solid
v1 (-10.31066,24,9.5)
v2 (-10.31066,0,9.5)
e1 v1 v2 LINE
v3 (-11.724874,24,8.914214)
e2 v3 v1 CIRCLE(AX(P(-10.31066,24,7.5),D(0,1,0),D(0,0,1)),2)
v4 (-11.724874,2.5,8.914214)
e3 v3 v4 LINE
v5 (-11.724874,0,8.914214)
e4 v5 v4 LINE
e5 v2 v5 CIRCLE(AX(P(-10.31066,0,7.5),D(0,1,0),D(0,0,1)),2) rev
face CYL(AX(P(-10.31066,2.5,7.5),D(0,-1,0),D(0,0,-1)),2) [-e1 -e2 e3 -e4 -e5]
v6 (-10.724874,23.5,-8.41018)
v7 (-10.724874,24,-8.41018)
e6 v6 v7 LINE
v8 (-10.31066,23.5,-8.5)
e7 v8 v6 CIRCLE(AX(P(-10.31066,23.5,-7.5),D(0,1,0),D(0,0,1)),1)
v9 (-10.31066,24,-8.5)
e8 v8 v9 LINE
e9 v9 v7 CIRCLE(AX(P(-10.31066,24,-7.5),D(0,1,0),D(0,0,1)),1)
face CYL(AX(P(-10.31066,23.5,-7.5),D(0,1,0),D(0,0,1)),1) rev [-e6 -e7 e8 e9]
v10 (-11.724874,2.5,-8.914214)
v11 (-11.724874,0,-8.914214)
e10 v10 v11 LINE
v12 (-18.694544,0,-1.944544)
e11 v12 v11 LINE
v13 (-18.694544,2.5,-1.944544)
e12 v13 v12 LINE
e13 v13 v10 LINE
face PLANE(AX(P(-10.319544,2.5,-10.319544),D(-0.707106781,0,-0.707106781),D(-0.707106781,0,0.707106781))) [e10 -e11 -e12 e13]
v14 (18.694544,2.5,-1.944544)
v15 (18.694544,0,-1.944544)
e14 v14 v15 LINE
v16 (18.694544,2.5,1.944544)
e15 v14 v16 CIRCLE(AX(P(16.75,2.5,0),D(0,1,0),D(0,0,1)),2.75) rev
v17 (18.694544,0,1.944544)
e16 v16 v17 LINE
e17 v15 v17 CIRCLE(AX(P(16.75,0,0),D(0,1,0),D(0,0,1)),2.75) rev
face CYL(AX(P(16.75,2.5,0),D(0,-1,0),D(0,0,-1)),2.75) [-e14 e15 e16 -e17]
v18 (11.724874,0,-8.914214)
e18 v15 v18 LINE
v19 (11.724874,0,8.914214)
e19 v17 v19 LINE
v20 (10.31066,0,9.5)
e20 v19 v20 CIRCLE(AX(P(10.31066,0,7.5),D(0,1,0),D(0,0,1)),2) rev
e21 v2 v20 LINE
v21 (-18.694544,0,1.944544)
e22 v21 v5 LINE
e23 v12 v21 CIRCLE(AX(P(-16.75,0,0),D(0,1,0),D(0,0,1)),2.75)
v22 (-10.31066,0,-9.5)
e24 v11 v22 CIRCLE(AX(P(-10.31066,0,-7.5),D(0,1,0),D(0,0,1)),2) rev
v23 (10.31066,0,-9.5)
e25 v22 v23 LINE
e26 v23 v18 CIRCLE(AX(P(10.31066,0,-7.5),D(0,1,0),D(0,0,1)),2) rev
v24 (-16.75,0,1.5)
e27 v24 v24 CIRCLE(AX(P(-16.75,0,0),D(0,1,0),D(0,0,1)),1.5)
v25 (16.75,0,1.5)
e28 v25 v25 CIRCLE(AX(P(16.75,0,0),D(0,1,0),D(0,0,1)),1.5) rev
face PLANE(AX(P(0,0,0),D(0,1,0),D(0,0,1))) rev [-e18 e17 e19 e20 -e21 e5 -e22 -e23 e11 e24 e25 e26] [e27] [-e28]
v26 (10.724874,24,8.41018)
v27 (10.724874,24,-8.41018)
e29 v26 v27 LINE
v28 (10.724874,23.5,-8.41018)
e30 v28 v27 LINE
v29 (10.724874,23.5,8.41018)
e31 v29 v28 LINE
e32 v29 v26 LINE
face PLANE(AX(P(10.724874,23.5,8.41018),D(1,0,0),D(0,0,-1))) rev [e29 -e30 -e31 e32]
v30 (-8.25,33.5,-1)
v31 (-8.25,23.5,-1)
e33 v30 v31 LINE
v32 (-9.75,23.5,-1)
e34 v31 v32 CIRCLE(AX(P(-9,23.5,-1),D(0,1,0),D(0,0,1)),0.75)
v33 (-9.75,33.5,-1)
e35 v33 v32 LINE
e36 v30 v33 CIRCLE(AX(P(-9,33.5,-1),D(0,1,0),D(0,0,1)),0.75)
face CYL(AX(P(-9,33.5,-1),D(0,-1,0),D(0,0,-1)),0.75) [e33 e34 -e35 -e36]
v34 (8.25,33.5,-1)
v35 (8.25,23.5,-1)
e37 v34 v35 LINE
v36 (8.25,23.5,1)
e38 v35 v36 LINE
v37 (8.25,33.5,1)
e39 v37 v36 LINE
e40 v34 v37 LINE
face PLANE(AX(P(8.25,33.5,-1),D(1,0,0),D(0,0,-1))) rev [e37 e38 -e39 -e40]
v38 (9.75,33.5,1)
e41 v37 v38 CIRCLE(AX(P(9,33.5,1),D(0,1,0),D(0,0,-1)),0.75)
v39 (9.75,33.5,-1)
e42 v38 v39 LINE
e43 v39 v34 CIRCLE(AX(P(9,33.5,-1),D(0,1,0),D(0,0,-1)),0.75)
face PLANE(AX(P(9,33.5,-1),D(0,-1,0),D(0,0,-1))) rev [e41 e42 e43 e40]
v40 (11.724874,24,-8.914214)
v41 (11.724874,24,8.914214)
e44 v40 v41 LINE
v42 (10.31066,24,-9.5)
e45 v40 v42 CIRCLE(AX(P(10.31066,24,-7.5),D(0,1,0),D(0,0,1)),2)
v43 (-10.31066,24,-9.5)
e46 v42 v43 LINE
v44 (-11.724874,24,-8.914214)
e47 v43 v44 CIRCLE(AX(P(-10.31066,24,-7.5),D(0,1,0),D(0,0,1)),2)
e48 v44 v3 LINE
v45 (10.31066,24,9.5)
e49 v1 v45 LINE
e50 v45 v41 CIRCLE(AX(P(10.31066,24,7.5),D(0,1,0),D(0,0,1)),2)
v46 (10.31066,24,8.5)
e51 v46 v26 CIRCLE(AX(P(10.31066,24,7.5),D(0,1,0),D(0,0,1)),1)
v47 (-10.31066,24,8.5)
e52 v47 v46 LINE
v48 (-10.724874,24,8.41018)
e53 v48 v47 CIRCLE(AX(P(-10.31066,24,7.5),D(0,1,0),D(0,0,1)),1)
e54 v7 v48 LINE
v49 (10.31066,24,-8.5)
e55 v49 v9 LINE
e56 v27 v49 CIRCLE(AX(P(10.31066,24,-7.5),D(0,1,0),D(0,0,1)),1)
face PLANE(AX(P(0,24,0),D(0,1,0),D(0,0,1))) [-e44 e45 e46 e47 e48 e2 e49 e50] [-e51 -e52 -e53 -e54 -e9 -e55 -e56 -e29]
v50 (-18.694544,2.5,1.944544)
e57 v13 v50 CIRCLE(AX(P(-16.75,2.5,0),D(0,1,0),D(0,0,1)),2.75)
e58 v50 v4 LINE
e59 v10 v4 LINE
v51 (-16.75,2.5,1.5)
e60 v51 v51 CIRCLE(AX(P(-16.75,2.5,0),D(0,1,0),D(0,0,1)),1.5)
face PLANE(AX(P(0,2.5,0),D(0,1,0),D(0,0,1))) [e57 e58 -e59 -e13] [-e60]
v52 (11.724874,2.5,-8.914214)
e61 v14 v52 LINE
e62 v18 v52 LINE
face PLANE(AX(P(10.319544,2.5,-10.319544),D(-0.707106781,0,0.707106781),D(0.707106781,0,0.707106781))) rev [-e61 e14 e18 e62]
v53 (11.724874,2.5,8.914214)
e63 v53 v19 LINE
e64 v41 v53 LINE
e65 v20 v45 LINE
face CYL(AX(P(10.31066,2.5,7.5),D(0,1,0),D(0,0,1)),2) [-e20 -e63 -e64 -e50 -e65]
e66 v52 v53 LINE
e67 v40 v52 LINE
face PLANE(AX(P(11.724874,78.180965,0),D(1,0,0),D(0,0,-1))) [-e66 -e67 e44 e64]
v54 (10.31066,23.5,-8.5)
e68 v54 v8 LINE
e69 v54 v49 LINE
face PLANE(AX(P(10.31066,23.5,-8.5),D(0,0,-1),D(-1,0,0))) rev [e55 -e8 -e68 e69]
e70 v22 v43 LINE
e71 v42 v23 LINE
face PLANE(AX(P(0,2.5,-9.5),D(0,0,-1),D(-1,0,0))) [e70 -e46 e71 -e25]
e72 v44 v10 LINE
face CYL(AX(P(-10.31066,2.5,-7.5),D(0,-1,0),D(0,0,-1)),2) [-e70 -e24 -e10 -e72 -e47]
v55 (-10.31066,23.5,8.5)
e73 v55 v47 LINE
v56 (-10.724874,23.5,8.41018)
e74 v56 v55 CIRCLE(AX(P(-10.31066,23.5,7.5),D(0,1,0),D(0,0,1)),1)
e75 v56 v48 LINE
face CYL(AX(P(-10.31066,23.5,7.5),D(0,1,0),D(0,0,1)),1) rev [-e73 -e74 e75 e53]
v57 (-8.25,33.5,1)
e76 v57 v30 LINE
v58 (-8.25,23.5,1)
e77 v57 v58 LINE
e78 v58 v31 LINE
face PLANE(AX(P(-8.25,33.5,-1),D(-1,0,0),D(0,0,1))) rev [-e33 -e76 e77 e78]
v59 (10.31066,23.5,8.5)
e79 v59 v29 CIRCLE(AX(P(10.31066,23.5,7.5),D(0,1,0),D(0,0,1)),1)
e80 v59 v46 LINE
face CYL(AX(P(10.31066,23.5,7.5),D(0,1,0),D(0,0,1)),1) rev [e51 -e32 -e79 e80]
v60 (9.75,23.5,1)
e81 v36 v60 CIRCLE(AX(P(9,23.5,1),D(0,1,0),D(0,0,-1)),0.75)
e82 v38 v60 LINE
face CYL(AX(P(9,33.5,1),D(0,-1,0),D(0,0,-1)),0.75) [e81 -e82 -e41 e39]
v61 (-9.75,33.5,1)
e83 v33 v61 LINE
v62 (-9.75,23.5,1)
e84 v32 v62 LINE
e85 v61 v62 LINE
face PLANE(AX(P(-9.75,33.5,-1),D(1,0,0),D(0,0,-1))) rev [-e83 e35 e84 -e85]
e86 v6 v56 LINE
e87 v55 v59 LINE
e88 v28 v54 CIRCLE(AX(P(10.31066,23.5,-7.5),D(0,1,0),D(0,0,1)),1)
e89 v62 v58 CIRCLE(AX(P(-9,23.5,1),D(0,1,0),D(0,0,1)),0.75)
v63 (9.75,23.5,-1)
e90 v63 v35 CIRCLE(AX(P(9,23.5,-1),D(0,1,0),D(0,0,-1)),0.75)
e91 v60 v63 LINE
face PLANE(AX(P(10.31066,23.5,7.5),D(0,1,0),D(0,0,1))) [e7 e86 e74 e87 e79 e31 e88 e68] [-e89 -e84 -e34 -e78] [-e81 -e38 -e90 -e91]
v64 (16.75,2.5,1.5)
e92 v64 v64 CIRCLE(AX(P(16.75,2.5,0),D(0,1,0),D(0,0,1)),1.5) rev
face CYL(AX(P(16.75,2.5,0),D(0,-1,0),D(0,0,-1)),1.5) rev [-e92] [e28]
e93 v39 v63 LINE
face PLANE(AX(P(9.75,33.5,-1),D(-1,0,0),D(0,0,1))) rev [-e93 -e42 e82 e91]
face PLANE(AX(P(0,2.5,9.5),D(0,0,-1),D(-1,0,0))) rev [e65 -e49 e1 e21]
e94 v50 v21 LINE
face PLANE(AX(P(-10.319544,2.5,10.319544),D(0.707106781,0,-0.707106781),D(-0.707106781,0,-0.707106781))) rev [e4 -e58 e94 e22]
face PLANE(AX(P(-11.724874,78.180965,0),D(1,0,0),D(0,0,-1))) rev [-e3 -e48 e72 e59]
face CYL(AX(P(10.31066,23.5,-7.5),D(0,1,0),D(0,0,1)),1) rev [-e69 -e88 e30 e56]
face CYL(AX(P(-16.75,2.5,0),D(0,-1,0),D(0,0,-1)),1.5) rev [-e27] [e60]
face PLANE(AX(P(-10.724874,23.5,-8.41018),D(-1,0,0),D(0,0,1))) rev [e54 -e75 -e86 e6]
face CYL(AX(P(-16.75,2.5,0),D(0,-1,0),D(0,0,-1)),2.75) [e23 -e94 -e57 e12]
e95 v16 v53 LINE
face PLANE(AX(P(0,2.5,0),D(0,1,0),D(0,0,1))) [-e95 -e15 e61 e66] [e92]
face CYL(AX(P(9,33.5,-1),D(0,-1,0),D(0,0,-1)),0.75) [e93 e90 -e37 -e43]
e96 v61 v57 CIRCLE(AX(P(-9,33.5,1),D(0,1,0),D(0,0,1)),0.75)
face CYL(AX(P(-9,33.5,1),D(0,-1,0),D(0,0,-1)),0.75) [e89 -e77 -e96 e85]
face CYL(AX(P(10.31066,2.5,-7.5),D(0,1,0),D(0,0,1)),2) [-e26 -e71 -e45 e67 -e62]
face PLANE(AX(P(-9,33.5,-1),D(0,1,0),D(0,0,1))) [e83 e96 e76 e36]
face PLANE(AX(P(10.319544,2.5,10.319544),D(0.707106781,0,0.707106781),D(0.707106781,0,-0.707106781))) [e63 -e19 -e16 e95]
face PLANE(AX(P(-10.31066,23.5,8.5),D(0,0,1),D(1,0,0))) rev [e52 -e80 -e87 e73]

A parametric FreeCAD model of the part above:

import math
import FreeCAD as App
import Part
import Sketcher
Q = App.Units.Quantity


def edges_at(feature, points):
    """Names of the edges that pass closest to the given points."""
    edges = feature.Shape.Edges
    near = lambda p: min(range(len(edges)), key=lambda i: edges[i].distToShape(Part.Vertex(*p))[0])
    return sorted({f"Edge{near(p) + 1}" for p in points})

doc = App.newDocument("Part")
body = doc.addObject("PartDesign::Body", "Body")

# Sketch on XZ plane
sketch1 = body.newObject("Sketcher::SketchObject", "Sketch")
sketch1.AttachmentSupport = (doc.getObject("XZ_Plane"), [""])
sketch1.MapMode = "FlatFace"
sketch1.addGeometry([
    Part.LineSegment(App.Vector(11.1, -9.5, 0), App.Vector(-11.1, -9.5, 0)),  # 0
    Part.LineSegment(App.Vector(-11.1, -9.5, 0), App.Vector(-18.7, -1.9, 0)),  # 1
    Part.ArcOfCircle(Part.Circle(App.Vector(-16.8, 0, 0), App.Vector(0, 0, 1), 2.8), math.radians(135), math.radians(225)),  # 2
    Part.LineSegment(App.Vector(-18.7, 1.9, 0), App.Vector(-11.1, 9.5, 0)),  # 3
    Part.LineSegment(App.Vector(-11.1, 9.5, 0), App.Vector(11.1, 9.5, 0)),  # 4
    Part.LineSegment(App.Vector(11.1, 9.5, 0), App.Vector(18.7, 1.9, 0)),  # 5
    Part.ArcOfCircle(Part.Circle(App.Vector(16.8, 0, 0), App.Vector(0, 0, 1), 2.8), math.radians(-45), math.radians(45)),  # 6
    Part.LineSegment(App.Vector(18.7, -1.9, 0), App.Vector(11.1, -9.5, 0)),  # 7
    Part.Circle(App.Vector(-16.8, 0, 0), App.Vector(0, 0, 1), 1.5),  # 8
    Part.Circle(App.Vector(16.8, 0, 0), App.Vector(0, 0, 1), 1.5),  # 9
], False)
sketch1.addConstraint([
    Sketcher.Constraint("Coincident", 0, 2, 1, 1),
    Sketcher.Constraint("Tangent", 1, 2, 2, 2),
    Sketcher.Constraint("Tangent", 2, 1, 3, 1),
    Sketcher.Constraint("Coincident", 3, 2, 4, 1),
    Sketcher.Constraint("Coincident", 4, 2, 5, 1),
    Sketcher.Constraint("Tangent", 5, 2, 6, 2),
    Sketcher.Constraint("Tangent", 6, 1, 7, 1),
    Sketcher.Constraint("Coincident", 7, 2, 0, 1),
    Sketcher.Constraint("Horizontal", 0),
    Sketcher.Constraint("Horizontal", 4),
    Sketcher.Constraint("Coincident", 8, 3, 2, 3),
    Sketcher.Constraint("Coincident", 9, 3, 6, 3),
    Sketcher.Constraint("Equal", 2, 6),
    Sketcher.Constraint("Equal", 8, 9),
    Sketcher.Constraint("Symmetric", 2, 3, 6, 3, -1, 1),
    Sketcher.Constraint("Symmetric", 0, 2, 4, 2, -1, 1),
    Sketcher.Constraint("Symmetric", 2, 1, 5, 2, -2),
    Sketcher.Constraint("Perpendicular", 1, 3),
    Sketcher.Constraint("Perpendicular", 5, 7),
    Sketcher.Constraint("Diameter", 8, Q("3 mm")),
    Sketcher.Constraint("Radius", 2, Q("2.75 mm")),
    Sketcher.Constraint("DistanceY", 0, 2, 3, 2, Q("19 mm")),
    Sketcher.Constraint("DistanceX", 2, 3, 6, 3, Q("33.5 mm")),
])
pad1 = body.newObject("PartDesign::Pad", "Pad")
pad1.Profile = sketch1
pad1.Length = 2.5
pad1.Reversed = True
doc.recompute()

fillet = body.newObject("PartDesign::Fillet", "Fillet")
fillet.Base = (pad1, edges_at(pad1, [
    (11.139, 1.25, 9.5),
    (-11.139, 1.25, 9.5),
    (-11.139, 1.25, -9.5),
    (11.139, 1.25, -9.5),
]))
fillet.Radius = 2

# Sketch on XZ plane
sketch2 = body.newObject("Sketcher::SketchObject", "Sketch001")
sketch2.AttachmentSupport = (doc.getObject("XZ_Plane"), [""])
sketch2.MapMode = "FlatFace"
sketch2.AttachmentOffset = App.Placement(App.Vector(0, 0, -24), App.Rotation())
sketch2.addGeometry([
    Part.LineSegment(App.Vector(10.3, -9.5, 0), App.Vector(-10.3, -9.5, 0)),  # 0
    Part.ArcOfCircle(Part.Circle(App.Vector(-10.3, -7.5, 0), App.Vector(0, 0, 1), 2), math.radians(-135), math.radians(-90)),  # 1
    Part.LineSegment(App.Vector(-11.7, -8.9, 0), App.Vector(-11.7, 8.9, 0)),  # 2
    Part.ArcOfCircle(Part.Circle(App.Vector(-10.3, 7.5, 0), App.Vector(0, 0, 1), 2), math.radians(90), math.radians(135)),  # 3
    Part.LineSegment(App.Vector(-10.3, 9.5, 0), App.Vector(10.3, 9.5, 0)),  # 4
    Part.ArcOfCircle(Part.Circle(App.Vector(10.3, 7.5, 0), App.Vector(0, 0, 1), 2), math.radians(45), math.radians(90)),  # 5
    Part.LineSegment(App.Vector(11.7, 8.9, 0), App.Vector(11.7, -8.9, 0)),  # 6
    Part.ArcOfCircle(Part.Circle(App.Vector(10.3, -7.5, 0), App.Vector(0, 0, 1), 2), math.radians(-90), math.radians(-45)),  # 7
], False)
sketch2.addConstraint([
    Sketcher.Constraint("Tangent", 0, 2, 1, 2),
    Sketcher.Constraint("Coincident", 1, 1, 2, 1),
    Sketcher.Constraint("Coincident", 2, 2, 3, 2),
    Sketcher.Constraint("Tangent", 3, 1, 4, 1),
    Sketcher.Constraint("Tangent", 4, 2, 5, 2),
    Sketcher.Constraint("Coincident", 5, 1, 6, 1),
    Sketcher.Constraint("Coincident", 6, 2, 7, 2),
    Sketcher.Constraint("Tangent", 7, 1, 0, 1),
    Sketcher.Constraint("Horizontal", 0),
    Sketcher.Constraint("Vertical", 2),
    Sketcher.Constraint("Horizontal", 4),
    Sketcher.Constraint("Vertical", 6),
    Sketcher.Constraint("Equal", 1, 3),
    Sketcher.Constraint("Equal", 3, 5),
    Sketcher.Constraint("Equal", 5, 7),
    Sketcher.Constraint("Symmetric", 1, 3, 5, 3, -1, 1),
    Sketcher.Constraint("Symmetric", 2, 2, 6, 2, -1, 1),
    Sketcher.Constraint("Horizontal", 2, 2, 5, 1),
    Sketcher.Constraint("Radius", 1, Q("2 mm")),
    Sketcher.Constraint("DistanceY", 1, 3, 3, 3, Q("15 mm")),
    Sketcher.Constraint("DistanceX", 0, 2, 0, 1, Q("20.62132 mm")),
    Sketcher.Constraint("DistanceY", 2, 1, 2, 2, Q("17.828427 mm")),
])
pad2 = body.newObject("PartDesign::Pad", "Pad001")
pad2.Profile = sketch2
pad2.Length = 21.5

# Sketch on XZ plane
sketch3 = body.newObject("Sketcher::SketchObject", "Sketch002")
sketch3.AttachmentSupport = (doc.getObject("XZ_Plane"), [""])
sketch3.MapMode = "FlatFace"
sketch3.AttachmentOffset = App.Placement(App.Vector(0, 0, -24), App.Rotation())
sketch3.addGeometry([
    Part.LineSegment(App.Vector(10.72, 8.41, 0), App.Vector(10.72, -8.41, 0)),  # 0
    Part.ArcOfCircle(Part.Circle(App.Vector(10.31, -7.5, 0), App.Vector(0, 0, 1), 1), math.radians(-90), math.radians(-66)),  # 1
    Part.LineSegment(App.Vector(10.31, -8.5, 0), App.Vector(-10.31, -8.5, 0)),  # 2
    Part.ArcOfCircle(Part.Circle(App.Vector(-10.31, -7.5, 0), App.Vector(0, 0, 1), 1), math.radians(-114), math.radians(-90)),  # 3
    Part.LineSegment(App.Vector(-10.72, -8.41, 0), App.Vector(-10.72, 8.41, 0)),  # 4
    Part.ArcOfCircle(Part.Circle(App.Vector(-10.31, 7.5, 0), App.Vector(0, 0, 1), 1), math.radians(90), math.radians(114)),  # 5
    Part.LineSegment(App.Vector(-10.31, 8.5, 0), App.Vector(10.31, 8.5, 0)),  # 6
    Part.ArcOfCircle(Part.Circle(App.Vector(10.31, 7.5, 0), App.Vector(0, 0, 1), 1), math.radians(66), math.radians(90)),  # 7
], False)
sketch3.addConstraint([
    Sketcher.Constraint("Coincident", 0, 2, 1, 2),
    Sketcher.Constraint("Tangent", 1, 1, 2, 1),
    Sketcher.Constraint("Tangent", 2, 2, 3, 2),
    Sketcher.Constraint("Coincident", 3, 1, 4, 1),
    Sketcher.Constraint("Coincident", 4, 2, 5, 2),
    Sketcher.Constraint("Tangent", 5, 1, 6, 1),
    Sketcher.Constraint("Tangent", 6, 2, 7, 2),
    Sketcher.Constraint("Coincident", 7, 1, 0, 1),
    Sketcher.Constraint("Vertical", 0),
    Sketcher.Constraint("Horizontal", 2),
    Sketcher.Constraint("Vertical", 4),
    Sketcher.Constraint("Horizontal", 6),
    Sketcher.Constraint("Equal", 1, 3),
    Sketcher.Constraint("Equal", 3, 5),
    Sketcher.Constraint("Equal", 5, 7),
    Sketcher.Constraint("Symmetric", 1, 3, 5, 3, -1, 1),
    Sketcher.Constraint("Symmetric", 3, 1, 7, 1, -1, 1),
    Sketcher.Constraint("Horizontal", 0, 2, 3, 1),
    Sketcher.Constraint("Radius", 1, Q("1 mm")),
    Sketcher.Constraint("DistanceY", 3, 3, 5, 3, Q("15 mm")),
    Sketcher.Constraint("DistanceX", 2, 2, 2, 1, Q("20.62132 mm")),
    Sketcher.Constraint("DistanceY", 0, 2, 0, 1, Q("16.820359 mm")),
])
pocket1 = body.newObject("PartDesign::Pocket", "Pocket")
pocket1.Profile = sketch3
pocket1.Length = 0.5
pocket1.Reversed = True

# Sketch on XZ plane
sketch4 = body.newObject("Sketcher::SketchObject", "Sketch003")
sketch4.AttachmentSupport = (doc.getObject("XZ_Plane"), [""])
sketch4.MapMode = "FlatFace"
sketch4.AttachmentOffset = App.Placement(App.Vector(0, 0, -23.5), App.Rotation())
sketch4.addGeometry([
    Part.LineSegment(App.Vector(-8.2, 1, 0), App.Vector(-8.2, -1, 0)),  # 0
    Part.ArcOfCircle(Part.Circle(App.Vector(-9, -1, 0), App.Vector(0, 0, 1), 0.8), math.radians(180), math.radians(360)),  # 1
    Part.LineSegment(App.Vector(-9.8, -1, 0), App.Vector(-9.8, 1, 0)),  # 2
    Part.ArcOfCircle(Part.Circle(App.Vector(-9, 1, 0), App.Vector(0, 0, 1), 0.8), math.radians(0), math.radians(180)),  # 3
    Part.LineSegment(App.Vector(8.2, -1, 0), App.Vector(8.2, 1, 0)),  # 4
    Part.ArcOfCircle(Part.Circle(App.Vector(9, 1, 0), App.Vector(0, 0, 1), 0.8), math.radians(0), math.radians(180)),  # 5
    Part.LineSegment(App.Vector(9.8, 1, 0), App.Vector(9.8, -1, 0)),  # 6
    Part.ArcOfCircle(Part.Circle(App.Vector(9, -1, 0), App.Vector(0, 0, 1), 0.8), math.radians(180), math.radians(360)),  # 7
], False)
sketch4.addConstraint([
    Sketcher.Constraint("Tangent", 0, 2, 1, 2),
    Sketcher.Constraint("Tangent", 1, 1, 2, 1),
    Sketcher.Constraint("Tangent", 2, 2, 3, 2),
    Sketcher.Constraint("Tangent", 3, 1, 0, 1),
    Sketcher.Constraint("Tangent", 4, 2, 5, 2),
    Sketcher.Constraint("Tangent", 5, 1, 6, 1),
    Sketcher.Constraint("Tangent", 6, 2, 7, 2),
    Sketcher.Constraint("Tangent", 7, 1, 4, 1),
    Sketcher.Constraint("Vertical", 0),
    Sketcher.Constraint("Vertical", 2),
    Sketcher.Constraint("Vertical", 4),
    Sketcher.Constraint("Vertical", 6),
    Sketcher.Constraint("Equal", 3, 5),
    Sketcher.Constraint("Symmetric", 1, 3, 5, 3, -1, 1),
    Sketcher.Constraint("Horizontal", 3, 3, 5, 3),
    Sketcher.Constraint("Horizontal", 1, 3, 7, 3),
    Sketcher.Constraint("DistanceY", 0, 2, 0, 1, Q("2 mm")),
    Sketcher.Constraint("Radius", 1, Q("0.75 mm")),
    Sketcher.Constraint("DistanceX", 1, 3, -1, 1, Q("9 mm")),
])
pad3 = body.newObject("PartDesign::Pad", "Pad002")
pad3.Profile = sketch4
pad3.Length = 10
pad3.Reversed = True

doc.recompute()
